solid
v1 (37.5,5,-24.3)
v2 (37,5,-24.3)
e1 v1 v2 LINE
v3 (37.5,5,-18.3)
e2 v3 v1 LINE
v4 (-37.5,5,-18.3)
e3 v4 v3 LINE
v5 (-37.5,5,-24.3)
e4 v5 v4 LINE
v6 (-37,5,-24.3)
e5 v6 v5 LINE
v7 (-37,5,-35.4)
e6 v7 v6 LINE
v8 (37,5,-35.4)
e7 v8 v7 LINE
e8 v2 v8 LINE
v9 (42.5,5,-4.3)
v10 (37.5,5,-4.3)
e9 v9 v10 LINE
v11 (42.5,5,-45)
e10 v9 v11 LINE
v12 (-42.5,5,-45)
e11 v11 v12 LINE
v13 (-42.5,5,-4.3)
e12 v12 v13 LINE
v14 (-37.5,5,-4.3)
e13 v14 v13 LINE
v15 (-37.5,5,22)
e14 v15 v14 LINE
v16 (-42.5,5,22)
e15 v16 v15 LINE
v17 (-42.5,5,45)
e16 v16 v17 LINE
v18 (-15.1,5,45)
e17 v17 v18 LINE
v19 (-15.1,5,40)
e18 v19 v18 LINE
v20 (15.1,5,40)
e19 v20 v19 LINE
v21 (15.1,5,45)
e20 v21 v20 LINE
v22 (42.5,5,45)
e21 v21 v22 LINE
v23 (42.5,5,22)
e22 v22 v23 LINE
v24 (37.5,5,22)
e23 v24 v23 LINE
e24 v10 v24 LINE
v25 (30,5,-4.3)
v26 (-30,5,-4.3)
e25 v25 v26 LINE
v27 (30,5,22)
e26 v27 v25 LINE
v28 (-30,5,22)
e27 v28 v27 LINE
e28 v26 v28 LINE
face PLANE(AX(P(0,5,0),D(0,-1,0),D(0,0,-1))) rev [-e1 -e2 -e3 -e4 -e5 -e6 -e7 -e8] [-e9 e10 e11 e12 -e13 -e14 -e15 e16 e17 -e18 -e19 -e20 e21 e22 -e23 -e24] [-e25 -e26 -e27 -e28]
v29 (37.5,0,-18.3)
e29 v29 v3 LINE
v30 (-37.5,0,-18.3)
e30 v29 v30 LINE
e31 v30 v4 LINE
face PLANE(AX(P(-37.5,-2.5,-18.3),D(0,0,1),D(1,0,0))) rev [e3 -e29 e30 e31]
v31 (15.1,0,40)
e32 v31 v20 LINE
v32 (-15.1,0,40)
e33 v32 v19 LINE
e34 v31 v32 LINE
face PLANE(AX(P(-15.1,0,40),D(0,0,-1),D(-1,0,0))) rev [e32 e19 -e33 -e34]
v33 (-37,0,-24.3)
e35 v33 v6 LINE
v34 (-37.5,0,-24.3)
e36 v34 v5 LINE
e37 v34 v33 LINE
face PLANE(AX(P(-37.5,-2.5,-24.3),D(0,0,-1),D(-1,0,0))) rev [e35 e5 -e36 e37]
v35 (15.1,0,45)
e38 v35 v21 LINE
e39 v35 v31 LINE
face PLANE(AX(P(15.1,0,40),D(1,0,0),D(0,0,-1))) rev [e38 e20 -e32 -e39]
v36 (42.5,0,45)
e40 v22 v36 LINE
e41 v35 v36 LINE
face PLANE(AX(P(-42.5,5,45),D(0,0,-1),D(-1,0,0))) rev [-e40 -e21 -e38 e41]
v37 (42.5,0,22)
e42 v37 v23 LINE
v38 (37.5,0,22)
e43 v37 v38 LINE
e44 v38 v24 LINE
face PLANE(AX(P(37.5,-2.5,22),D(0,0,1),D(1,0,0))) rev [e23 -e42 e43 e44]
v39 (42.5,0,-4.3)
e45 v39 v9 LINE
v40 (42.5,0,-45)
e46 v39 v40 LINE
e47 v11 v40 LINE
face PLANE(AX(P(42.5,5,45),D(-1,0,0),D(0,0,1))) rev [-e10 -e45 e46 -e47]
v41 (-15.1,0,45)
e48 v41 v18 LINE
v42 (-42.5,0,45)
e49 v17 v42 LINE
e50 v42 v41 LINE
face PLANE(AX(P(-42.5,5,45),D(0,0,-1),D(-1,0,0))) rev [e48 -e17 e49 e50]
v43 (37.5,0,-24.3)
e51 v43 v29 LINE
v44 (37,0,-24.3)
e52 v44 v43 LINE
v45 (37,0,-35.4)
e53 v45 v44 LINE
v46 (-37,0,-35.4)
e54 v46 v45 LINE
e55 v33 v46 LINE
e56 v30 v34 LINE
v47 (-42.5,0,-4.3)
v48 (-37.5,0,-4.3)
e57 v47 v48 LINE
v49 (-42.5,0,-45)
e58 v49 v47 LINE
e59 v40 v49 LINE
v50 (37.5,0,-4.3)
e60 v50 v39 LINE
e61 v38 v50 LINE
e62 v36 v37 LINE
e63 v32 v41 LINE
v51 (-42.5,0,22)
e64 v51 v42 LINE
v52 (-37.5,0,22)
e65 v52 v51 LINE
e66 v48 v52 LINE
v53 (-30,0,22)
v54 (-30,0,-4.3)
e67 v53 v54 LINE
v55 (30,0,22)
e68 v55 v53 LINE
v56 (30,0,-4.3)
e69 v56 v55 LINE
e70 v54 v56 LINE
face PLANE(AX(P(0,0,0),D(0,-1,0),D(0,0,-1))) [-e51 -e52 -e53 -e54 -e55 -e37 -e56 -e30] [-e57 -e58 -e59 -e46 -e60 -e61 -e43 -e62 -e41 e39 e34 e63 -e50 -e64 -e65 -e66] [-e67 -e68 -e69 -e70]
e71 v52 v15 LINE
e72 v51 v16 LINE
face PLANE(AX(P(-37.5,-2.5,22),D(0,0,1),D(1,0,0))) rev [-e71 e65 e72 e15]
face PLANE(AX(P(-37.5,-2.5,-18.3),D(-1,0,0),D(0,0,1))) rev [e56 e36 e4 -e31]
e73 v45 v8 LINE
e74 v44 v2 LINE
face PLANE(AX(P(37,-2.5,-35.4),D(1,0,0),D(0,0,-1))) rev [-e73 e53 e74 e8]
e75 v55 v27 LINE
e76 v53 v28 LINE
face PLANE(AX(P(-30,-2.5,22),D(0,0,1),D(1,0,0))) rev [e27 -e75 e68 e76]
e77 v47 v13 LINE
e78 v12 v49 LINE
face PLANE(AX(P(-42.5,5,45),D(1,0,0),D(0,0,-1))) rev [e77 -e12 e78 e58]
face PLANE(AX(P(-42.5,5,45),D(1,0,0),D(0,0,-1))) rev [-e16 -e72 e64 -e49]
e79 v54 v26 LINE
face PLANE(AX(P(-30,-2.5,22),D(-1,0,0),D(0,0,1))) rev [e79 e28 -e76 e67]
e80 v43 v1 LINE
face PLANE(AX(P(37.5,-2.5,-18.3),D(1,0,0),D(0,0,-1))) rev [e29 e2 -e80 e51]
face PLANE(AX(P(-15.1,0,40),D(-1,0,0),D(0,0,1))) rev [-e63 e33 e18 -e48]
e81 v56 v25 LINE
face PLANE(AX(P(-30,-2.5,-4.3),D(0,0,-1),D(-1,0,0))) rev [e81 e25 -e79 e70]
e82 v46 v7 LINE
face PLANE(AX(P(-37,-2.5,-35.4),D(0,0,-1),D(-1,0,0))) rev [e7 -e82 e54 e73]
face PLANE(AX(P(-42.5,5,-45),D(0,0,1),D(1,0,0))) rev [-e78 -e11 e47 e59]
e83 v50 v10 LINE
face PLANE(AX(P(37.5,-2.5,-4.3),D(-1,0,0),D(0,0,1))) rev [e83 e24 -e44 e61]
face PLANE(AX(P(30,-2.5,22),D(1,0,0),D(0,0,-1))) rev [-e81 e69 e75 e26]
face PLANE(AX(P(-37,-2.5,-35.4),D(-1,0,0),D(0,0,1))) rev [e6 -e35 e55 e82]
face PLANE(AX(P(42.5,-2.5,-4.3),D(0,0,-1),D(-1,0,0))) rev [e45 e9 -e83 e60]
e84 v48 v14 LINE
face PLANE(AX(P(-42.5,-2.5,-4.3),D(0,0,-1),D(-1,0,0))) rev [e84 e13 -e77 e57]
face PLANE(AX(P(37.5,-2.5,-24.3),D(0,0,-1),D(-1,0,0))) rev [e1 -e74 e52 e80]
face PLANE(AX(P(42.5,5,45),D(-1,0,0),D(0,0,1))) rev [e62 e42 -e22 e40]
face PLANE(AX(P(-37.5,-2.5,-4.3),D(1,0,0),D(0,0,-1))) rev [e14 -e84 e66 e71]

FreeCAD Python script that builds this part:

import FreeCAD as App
import Part
import Sketcher
from FreeCAD import Vector
Q = App.Units.Quantity


def add_polygon(sketch, points):
    """Adds a closed chain of lines whose ends are joined by coincident constraints."""
    first, n = sketch.GeometryCount, len(points)
    for a, b in zip(points, points[1:] + points[:1]):
        sketch.addGeometry(Part.LineSegment(App.Vector(*a, 0), App.Vector(*b, 0)), False)
    for i in range(n):
        sketch.addConstraint(Sketcher.Constraint("Coincident", first + i, 2, first + (i + 1) % n, 1))

doc = App.newDocument("Part")
body = doc.addObject("PartDesign::Body", "Body")

sketch1 = doc.addObject("Sketcher::SketchObject", "Sketch")
body.addObject(sketch1)
sketch1.AttachmentSupport = (doc.XZ_Plane, [""])
sketch1.MapMode = "FlatFace"
add_polygon(sketch1, [(-42.5, -45), (-42.5, 45), (42.5, 45), (42.5, -45)])
sketch1.addConstraint([
    Sketcher.Constraint("Vertical", 0),
    Sketcher.Constraint("Horizontal", 1),
    Sketcher.Constraint("Vertical", 2),
    Sketcher.Constraint("Horizontal", 3),
    Sketcher.Constraint("Symmetric", 0, 2, 2, 2, -1, 1),
    Sketcher.Constraint("DistanceX", 1, 1, 1, 2, Q("85 mm")),
    Sketcher.Constraint("DistanceY", 0, 1, 0, 2, Q("90 mm")),
])
pad1 = doc.addObject("PartDesign::Pad", "Pad")
body.addObject(pad1)
pad1.Profile = sketch1
pad1.Length = 5
pad1.Reversed = True

sketch2 = doc.addObject("Sketcher::SketchObject", "Sketch001")
body.addObject(sketch2)
sketch2.AttachmentSupport = (doc.XZ_Plane, [""])
sketch2.MapMode = "FlatFace"
sketch2.AttachmentOffset = App.Placement(Vector(0, 0, -5), App.Rotation())
add_polygon(sketch2, [(-30, -4.3), (-30, 22), (30, 22), (30, -4.3)])
add_polygon(sketch2, [(37.5, -24.3), (37, -24.3), (37, -35.4), (-37, -35.4), (-37, -24.3), (-37.5, -24.3), (-37.5, -18.3), (37.5, -18.3)])
sketch2.addConstraint([
    Sketcher.Constraint("Vertical", 0),
    Sketcher.Constraint("Horizontal", 1),
    Sketcher.Constraint("Vertical", 2),
    Sketcher.Constraint("Horizontal", 3),
    Sketcher.Constraint("Horizontal", 4),
    Sketcher.Constraint("Vertical", 5),
    Sketcher.Constraint("Horizontal", 6),
    Sketcher.Constraint("Vertical", 7),
    Sketcher.Constraint("Horizontal", 8),
    Sketcher.Constraint("Vertical", 9),
    Sketcher.Constraint("Horizontal", 10),
    Sketcher.Constraint("Vertical", 11),
    Sketcher.Constraint("Symmetric", 4, 2, 7, 2, -2),
    Sketcher.Constraint("Equal", 4, 8),
    Sketcher.Constraint("DistanceX", 1, 1, 1, 2, Q("60 mm")),
    Sketcher.Constraint("DistanceX", 6, 2, 6, 1, Q("74 mm")),
    Sketcher.Constraint("DistanceX", 10, 1, 10, 2, Q("75 mm")),
    Sketcher.Constraint("DistanceY", 9, 1, 9, 2, Q("6 mm")),
    Sketcher.Constraint("DistanceY", 0, 1, 0, 2, Q("26.3 mm")),
    Sketcher.Constraint("DistanceY", 5, 2, 5, 1, Q("11.1 mm")),
    Sketcher.Constraint("DistanceX", 0, 2, -1, 1, Q("30 mm")),
    Sketcher.Constraint("DistanceY", -1, 1, 0, 2, Q("22 mm")),
    Sketcher.Constraint("DistanceY", 4, 2, 2, 2, Q("20 mm")),
])
pocket1 = doc.addObject("PartDesign::Pocket", "Pocket")
body.addObject(pocket1)
pocket1.Profile = sketch2
pocket1.Length = 7.5
pocket1.Reversed = True

sketch3 = doc.addObject("Sketcher::SketchObject", "Sketch002")
body.addObject(sketch3)
sketch3.AttachmentSupport = (doc.XZ_Plane, [""])
sketch3.MapMode = "FlatFace"
sketch3.AttachmentOffset = App.Placement(Vector(0, 0, -5), App.Rotation())
add_polygon(sketch3, [(-42.5, -4.3), (-42.5, 22), (-37.5, 22), (-37.5, -4.3)])
add_polygon(sketch3, [(37.5, -4.3), (37.5, 22), (42.5, 22), (42.5, -4.3)])
sketch3.addConstraint([
    Sketcher.Constraint("Vertical", 0),
    Sketcher.Constraint("Horizontal", 1),
    Sketcher.Constraint("Vertical", 2),
    Sketcher.Constraint("Horizontal", 3),
    Sketcher.Constraint("Vertical", 4),
    Sketcher.Constraint("Horizontal", 5),
    Sketcher.Constraint("Vertical", 6),
    Sketcher.Constraint("Horizontal", 7),
    Sketcher.Constraint("Symmetric", 1, 2, 4, 2, -2),
    Sketcher.Constraint("Symmetric", 3, 2, 6, 2, -2),
    Sketcher.Constraint("DistanceX", 1, 1, 1, 2, Q("5 mm")),
    Sketcher.Constraint("DistanceY", 0, 1, 0, 2, Q("26.3 mm")),
    Sketcher.Constraint("DistanceY", -1, 1, 0, 2, Q("22 mm")),
    Sketcher.Constraint("DistanceX", 1, 2, 4, 2, Q("75 mm")),
])
pocket2 = doc.addObject("PartDesign::Pocket", "Pocket001")
body.addObject(pocket2)
pocket2.Profile = sketch3
pocket2.Length = 7.5
pocket2.Reversed = True

sketch4 = doc.addObject("Sketcher::SketchObject", "Sketch003")
body.addObject(sketch4)
sketch4.AttachmentSupport = (doc.XZ_Plane, [""])
sketch4.MapMode = "FlatFace"
sketch4.AttachmentOffset = App.Placement(Vector(0, 0, -5), App.Rotation())
add_polygon(sketch4, [(-15.1, 40), (-15.1, 45), (15.1, 45), (15.1, 40)])
sketch4.addConstraint([
    Sketcher.Constraint("Vertical", 0),
    Sketcher.Constraint("Horizontal", 1),
    Sketcher.Constraint("Vertical", 2),
    Sketcher.Constraint("Horizontal", 3),
    Sketcher.Constraint("DistanceY", 0, 1, 0, 2, Q("5 mm")),
    Sketcher.Constraint("DistanceX", 1, 1, 1, 2, Q("30.2 mm")),
    Sketcher.Constraint("DistanceY", -1, 1, 0, 2, Q("45 mm")),
    Sketcher.Constraint("DistanceX", 0, 2, -1, 1, Q("15.1 mm")),
])
pocket3 = doc.addObject("PartDesign::Pocket", "Pocket002")
body.addObject(pocket3)
pocket3.Profile = sketch4
pocket3.Length = 5
pocket3.Reversed = True

doc.recompute()
